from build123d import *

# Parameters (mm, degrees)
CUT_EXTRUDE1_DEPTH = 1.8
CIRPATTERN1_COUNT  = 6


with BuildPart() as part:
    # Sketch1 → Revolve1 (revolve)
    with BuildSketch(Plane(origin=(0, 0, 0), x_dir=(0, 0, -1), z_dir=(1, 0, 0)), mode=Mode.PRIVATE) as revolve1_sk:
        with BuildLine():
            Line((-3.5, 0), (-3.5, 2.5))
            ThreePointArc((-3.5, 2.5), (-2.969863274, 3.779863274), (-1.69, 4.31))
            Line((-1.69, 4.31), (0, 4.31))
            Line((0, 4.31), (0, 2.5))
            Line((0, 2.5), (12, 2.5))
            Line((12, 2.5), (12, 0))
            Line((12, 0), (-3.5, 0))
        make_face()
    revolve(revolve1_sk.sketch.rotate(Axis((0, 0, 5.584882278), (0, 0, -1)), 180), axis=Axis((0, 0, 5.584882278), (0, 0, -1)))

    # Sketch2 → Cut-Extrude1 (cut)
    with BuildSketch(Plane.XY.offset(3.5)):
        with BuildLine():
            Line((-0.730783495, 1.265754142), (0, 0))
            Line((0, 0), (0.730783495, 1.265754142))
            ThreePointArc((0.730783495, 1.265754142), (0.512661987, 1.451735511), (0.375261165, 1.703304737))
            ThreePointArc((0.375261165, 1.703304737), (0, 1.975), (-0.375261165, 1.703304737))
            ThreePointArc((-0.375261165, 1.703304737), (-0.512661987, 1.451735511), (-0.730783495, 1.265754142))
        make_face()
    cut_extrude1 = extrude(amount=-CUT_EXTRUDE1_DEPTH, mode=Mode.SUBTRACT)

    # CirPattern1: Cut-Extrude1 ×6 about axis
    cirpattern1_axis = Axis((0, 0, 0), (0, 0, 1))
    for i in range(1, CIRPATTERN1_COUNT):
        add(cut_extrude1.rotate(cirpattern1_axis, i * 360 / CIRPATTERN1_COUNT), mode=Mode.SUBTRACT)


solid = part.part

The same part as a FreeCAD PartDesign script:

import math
import FreeCAD as App
import Part
import Sketcher
from FreeCAD import Vector
Q = App.Units.Quantity

doc = App.newDocument("Part")
body = doc.addObject("PartDesign::Body", "Body")

sketch1 = doc.addObject("Sketcher::SketchObject", "Sketch")
body.addObject(sketch1)
sketch1.AttachmentSupport = (doc.YZ_Plane, [""])
sketch1.MapMode = "FlatFace"
sketch1.addGeometry([
    Part.LineSegment(Vector(2.5, 3.5, 0), Vector(0, 3.5, 0)),
    Part.LineSegment(Vector(0, 3.5, 0), Vector(0, -12, 0)),
    Part.LineSegment(Vector(0, -12, 0), Vector(2.5, -12, 0)),
    Part.LineSegment(Vector(2.5, -12, 0), Vector(2.5, 0, 0)),
    Part.LineSegment(Vector(2.5, 0, 0), Vector(4.3, 0, 0)),
    Part.LineSegment(Vector(4.3, 0, 0), Vector(4.3, 1.7, 0)),
    Part.ArcOfCircle(Part.Circle(Vector(2.5, 1.7, 0), Vector(0, 0, 1), 1.8), math.radians(0), math.radians(90)),
], False)
sketch1.addConstraint([
    Sketcher.Constraint("Coincident", 0, 2, 1, 1),
    Sketcher.Constraint("Coincident", 1, 2, 2, 1),
    Sketcher.Constraint("Coincident", 2, 2, 3, 1),
    Sketcher.Constraint("Coincident", 3, 2, 4, 1),
    Sketcher.Constraint("Coincident", 4, 2, 5, 1),
    Sketcher.Constraint("Tangent", 5, 2, 6, 1),
    Sketcher.Constraint("Tangent", 6, 2, 0, 1),
    Sketcher.Constraint("Horizontal", 0),
    Sketcher.Constraint("Vertical", 1),
    Sketcher.Constraint("Horizontal", 2),
    Sketcher.Constraint("Vertical", 3),
    Sketcher.Constraint("Horizontal", 4),
    Sketcher.Constraint("Vertical", 5),
    Sketcher.Constraint("PointOnObject", 0, 2, -2),
    Sketcher.Constraint("PointOnObject", 3, 2, -1),
    Sketcher.Constraint("Vertical", 6, 3, 2, 2),
    Sketcher.Constraint("DistanceY", 3, 1, 3, 2, 12.0),
    Sketcher.Constraint("Radius", 6, 1.81),
    Sketcher.Constraint("DistanceX", 0, 2, 0, 1, 2.5),
    Sketcher.Constraint("DistanceY", 1, 2, 1, 1, 15.5),
])
revolution = doc.addObject("PartDesign::Revolution", "Revolution")
body.addObject(revolution)
revolution.Profile = sketch1
revolution.ReferenceAxis = (sketch1, ["V_Axis"])
revolution.Angle = 360

sketch2 = doc.addObject("Sketcher::SketchObject", "Sketch001")
body.addObject(sketch2)
sketch2.AttachmentSupport = (doc.XY_Plane, [""])
sketch2.MapMode = "FlatFace"
sketch2.AttachmentOffset = App.Placement(Vector(0, 0, 3.5), App.Rotation())
sketch2.addGeometry([
    Part.LineSegment(Vector(-0.73, 1.27, 0), Vector(0, 0, 0)),
    Part.LineSegment(Vector(0, 0, 0), Vector(0.73, 1.27, 0)),
    Part.ArcOfCircle(Part.Circle(Vector(1.13, 1.95, 0), Vector(0, 0, 1), 0.79), math.radians(-162), math.radians(-120)),
    Part.ArcOfCircle(Part.Circle(Vector(0, 1.58, 0), Vector(0, 0, 1), 0.4), math.radians(18), math.radians(162)),
    Part.ArcOfCircle(Part.Circle(Vector(-1.13, 1.95, 0), Vector(0, 0, 1), 0.79), math.radians(-60), math.radians(-18)),
], False)
sketch2.addConstraint([
    Sketcher.Constraint("Coincident", 0, 2, 1, 1),
    Sketcher.Constraint("Coincident", 1, 2, 2, 2),
    Sketcher.Constraint("Tangent", 2, 1, 3, 1),
    Sketcher.Constraint("Tangent", 3, 2, 4, 2),
    Sketcher.Constraint("Coincident", 4, 1, 0, 1),
    Sketcher.Constraint("Coincident", 0, 2, -1, 1),
    Sketcher.Constraint("Equal", 2, 4),
    Sketcher.Constraint("Symmetric", 2, 3, 4, 3, -2),
    Sketcher.Constraint("Horizontal", 1, 2, 4, 1),
    Sketcher.Constraint("Angle", 0, Q("-60 deg")),
    Sketcher.Constraint("Radius", 2, 0.79),
    Sketcher.Constraint("Radius", 3, 0.395),
    Sketcher.Constraint("DistanceY", -1, 1, 3, 3, 1.58),
    Sketcher.Constraint("DistanceX", 1, 2, 2, 3, 0.395),
])
pocket1 = doc.addObject("PartDesign::Pocket", "Pocket")
body.addObject(pocket1)
pocket1.Profile = sketch2
pocket1.Length = 1.8
doc.recompute()

polarpattern = doc.addObject("PartDesign::PolarPattern", "PolarPattern")
body.addObject(polarpattern)
polarpattern.Originals = [pocket1]
polarpattern.Axis = (doc.Z_Axis, [""])
polarpattern.Angle = 360
polarpattern.Occurrences = 6
body.Tip = polarpattern

doc.recompute()
